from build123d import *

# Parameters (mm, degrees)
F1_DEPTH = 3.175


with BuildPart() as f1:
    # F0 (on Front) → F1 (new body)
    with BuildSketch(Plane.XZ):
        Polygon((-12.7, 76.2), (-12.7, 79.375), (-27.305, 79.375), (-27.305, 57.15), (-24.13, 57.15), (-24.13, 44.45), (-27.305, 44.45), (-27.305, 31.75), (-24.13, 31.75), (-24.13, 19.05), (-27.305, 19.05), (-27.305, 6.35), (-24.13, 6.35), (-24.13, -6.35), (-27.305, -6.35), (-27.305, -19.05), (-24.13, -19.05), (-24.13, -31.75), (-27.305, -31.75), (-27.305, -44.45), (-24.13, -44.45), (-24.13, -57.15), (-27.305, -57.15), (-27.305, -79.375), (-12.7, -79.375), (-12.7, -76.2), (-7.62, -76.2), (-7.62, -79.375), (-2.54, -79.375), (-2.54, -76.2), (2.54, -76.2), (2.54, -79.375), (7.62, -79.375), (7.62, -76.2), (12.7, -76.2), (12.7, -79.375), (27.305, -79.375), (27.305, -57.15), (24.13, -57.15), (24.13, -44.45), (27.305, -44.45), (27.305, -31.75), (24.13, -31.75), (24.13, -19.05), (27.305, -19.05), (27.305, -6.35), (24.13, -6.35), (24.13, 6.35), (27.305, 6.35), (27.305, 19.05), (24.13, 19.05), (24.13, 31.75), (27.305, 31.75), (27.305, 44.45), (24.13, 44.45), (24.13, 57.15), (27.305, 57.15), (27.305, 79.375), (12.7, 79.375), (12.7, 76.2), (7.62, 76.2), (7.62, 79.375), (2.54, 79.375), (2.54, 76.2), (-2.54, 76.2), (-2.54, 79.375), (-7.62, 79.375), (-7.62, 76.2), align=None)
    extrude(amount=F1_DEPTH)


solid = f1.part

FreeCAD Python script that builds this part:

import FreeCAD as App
import Part
import Sketcher

V = App.Vector
Q = App.Units.Quantity


def add_polygon(sketch, points):
    """Adds a closed chain of lines whose ends are joined by coincident constraints."""
    first, n = sketch.GeometryCount, len(points)
    for a, b in zip(points, points[1:] + points[:1]):
        sketch.addGeometry(Part.LineSegment(App.Vector(*a, 0), App.Vector(*b, 0)), False)
    for i in range(n):
        sketch.addConstraint(Sketcher.Constraint("Coincident", first + i, 2, first + (i + 1) % n, 1))

doc = App.newDocument("Part")
params = doc.addObject("Spreadsheet::Sheet", "Params")
for row, (alias, value) in enumerate([
    ("sketch1_width", "0.2 in"),
    ("sketch1_height", "0.5 in"),
    ("sketch1_width2", "0.575 in"),
    ("sketch1_width3", "0.125 in"),
    ("pad1_length", "0.125 in"),
], start=1):
    params.set(f"A{row}", alias)
    params.set(f"B{row}", "=" + value)
    params.setAlias(f"B{row}", alias)

body = doc.addObject("PartDesign::Body", "Body")

sketch1 = body.newObject("Sketcher::SketchObject", "Sketch")
sketch1.AttachmentSupport = (doc.getObject("XZ_Plane"), [""])
sketch1.MapMode = "FlatFace"
add_polygon(sketch1, [(-12.7, 76.2), (-12.7, 79.4), (-27.3, 79.4), (-27.3, 57.1), (-24.1, 57.1), (-24.1, 44.5), (-27.3, 44.5), (-27.3, 31.8), (-24.1, 31.8), (-24.1, 19.1), (-27.3, 19.1), (-27.3, 6.3), (-24.1, 6.3), (-24.1, -6.3), (-27.3, -6.3), (-27.3, -19.1), (-24.1, -19.1), (-24.1, -31.8), (-27.3, -31.8), (-27.3, -44.5), (-24.1, -44.5), (-24.1, -57.1), (-27.3, -57.1), (-27.3, -79.4), (-12.7, -79.4), (-12.7, -76.2), (-7.6, -76.2), (-7.6, -79.4), (-2.5, -79.4), (-2.5, -76.2), (2.5, -76.2), (2.5, -79.4), (7.6, -79.4), (7.6, -76.2), (12.7, -76.2), (12.7, -79.4), (27.3, -79.4), (27.3, -57.1), (24.1, -57.1), (24.1, -44.5), (27.3, -44.5), (27.3, -31.8), (24.1, -31.8), (24.1, -19.1), (27.3, -19.1), (27.3, -6.3), (24.1, -6.3), (24.1, 6.3), (27.3, 6.3), (27.3, 19.1), (24.1, 19.1), (24.1, 31.8), (27.3, 31.8), (27.3, 44.5), (24.1, 44.5), (24.1, 57.1), (27.3, 57.1), (27.3, 79.4), (12.7, 79.4), (12.7, 76.2), (7.6, 76.2), (7.6, 79.4), (2.5, 79.4), (2.5, 76.2), (-2.5, 76.2), (-2.5, 79.4), (-7.6, 79.4), (-7.6, 76.2)])
sketch1.addConstraint(Sketcher.Constraint("Vertical", 0))
sketch1.addConstraint(Sketcher.Constraint("Horizontal", 1))
sketch1.addConstraint(Sketcher.Constraint("Vertical", 2))
sketch1.addConstraint(Sketcher.Constraint("Horizontal", 3))
sketch1.addConstraint(Sketcher.Constraint("Vertical", 4))
sketch1.addConstraint(Sketcher.Constraint("Horizontal", 5))
sketch1.addConstraint(Sketcher.Constraint("Vertical", 6))
sketch1.addConstraint(Sketcher.Constraint("Horizontal", 7))
sketch1.addConstraint(Sketcher.Constraint("Vertical", 8))
sketch1.addConstraint(Sketcher.Constraint("Horizontal", 9))
sketch1.addConstraint(Sketcher.Constraint("Vertical", 10))
sketch1.addConstraint(Sketcher.Constraint("Horizontal", 11))
sketch1.addConstraint(Sketcher.Constraint("Vertical", 12))
sketch1.addConstraint(Sketcher.Constraint("Horizontal", 13))
sketch1.addConstraint(Sketcher.Constraint("Vertical", 14))
sketch1.addConstraint(Sketcher.Constraint("Horizontal", 15))
sketch1.addConstraint(Sketcher.Constraint("Vertical", 16))
sketch1.addConstraint(Sketcher.Constraint("Horizontal", 17))
sketch1.addConstraint(Sketcher.Constraint("Vertical", 18))
sketch1.addConstraint(Sketcher.Constraint("Horizontal", 19))
sketch1.addConstraint(Sketcher.Constraint("Vertical", 20))
sketch1.addConstraint(Sketcher.Constraint("Horizontal", 21))
sketch1.addConstraint(Sketcher.Constraint("Vertical", 22))
sketch1.addConstraint(Sketcher.Constraint("Horizontal", 23))
sketch1.addConstraint(Sketcher.Constraint("Vertical", 24))
sketch1.addConstraint(Sketcher.Constraint("Horizontal", 25))
sketch1.addConstraint(Sketcher.Constraint("Vertical", 26))
sketch1.addConstraint(Sketcher.Constraint("Horizontal", 27))
sketch1.addConstraint(Sketcher.Constraint("Vertical", 28))
sketch1.addConstraint(Sketcher.Constraint("Horizontal", 29))
sketch1.addConstraint(Sketcher.Constraint("Vertical", 30))
sketch1.addConstraint(Sketcher.Constraint("Horizontal", 31))
sketch1.addConstraint(Sketcher.Constraint("Vertical", 32))
sketch1.addConstraint(Sketcher.Constraint("Horizontal", 33))
sketch1.addConstraint(Sketcher.Constraint("Vertical", 34))
sketch1.addConstraint(Sketcher.Constraint("Horizontal", 35))
sketch1.addConstraint(Sketcher.Constraint("Vertical", 36))
sketch1.addConstraint(Sketcher.Constraint("Horizontal", 37))
sketch1.addConstraint(Sketcher.Constraint("Vertical", 38))
sketch1.addConstraint(Sketcher.Constraint("Horizontal", 39))
sketch1.addConstraint(Sketcher.Constraint("Vertical", 40))
sketch1.addConstraint(Sketcher.Constraint("Horizontal", 41))
sketch1.addConstraint(Sketcher.Constraint("Vertical", 42))
sketch1.addConstraint(Sketcher.Constraint("Horizontal", 43))
sketch1.addConstraint(Sketcher.Constraint("Vertical", 44))
sketch1.addConstraint(Sketcher.Constraint("Horizontal", 45))
sketch1.addConstraint(Sketcher.Constraint("Vertical", 46))
sketch1.addConstraint(Sketcher.Constraint("Horizontal", 47))
sketch1.addConstraint(Sketcher.Constraint("Vertical", 48))
sketch1.addConstraint(Sketcher.Constraint("Horizontal", 49))
sketch1.addConstraint(Sketcher.Constraint("Vertical", 50))
sketch1.addConstraint(Sketcher.Constraint("Horizontal", 51))
sketch1.addConstraint(Sketcher.Constraint("Vertical", 52))
sketch1.addConstraint(Sketcher.Constraint("Horizontal", 53))
sketch1.addConstraint(Sketcher.Constraint("Vertical", 54))
sketch1.addConstraint(Sketcher.Constraint("Horizontal", 55))
sketch1.addConstraint(Sketcher.Constraint("Vertical", 56))
sketch1.addConstraint(Sketcher.Constraint("Horizontal", 57))
sketch1.addConstraint(Sketcher.Constraint("Vertical", 58))
sketch1.addConstraint(Sketcher.Constraint("Horizontal", 59))
sketch1.addConstraint(Sketcher.Constraint("Vertical", 60))
sketch1.addConstraint(Sketcher.Constraint("Horizontal", 61))
sketch1.addConstraint(Sketcher.Constraint("Vertical", 62))
sketch1.addConstraint(Sketcher.Constraint("Horizontal", 63))
sketch1.addConstraint(Sketcher.Constraint("Vertical", 64))
sketch1.addConstraint(Sketcher.Constraint("Horizontal", 65))
sketch1.addConstraint(Sketcher.Constraint("Vertical", 66))
sketch1.addConstraint(Sketcher.Constraint("Horizontal", 67))
sketch1.addConstraint(Sketcher.Constraint("Symmetric", 0, 2, 34, 2, -1, 1))
sketch1.addConstraint(Sketcher.Constraint("Symmetric", 2, 2, 36, 2, -1, 1))
sketch1.addConstraint(Sketcher.Constraint("Symmetric", 4, 2, 38, 2, -1, 1))
sketch1.addConstraint(Sketcher.Constraint("Symmetric", 6, 2, 40, 2, -1, 1))
sketch1.addConstraint(Sketcher.Constraint("Symmetric", 8, 2, 42, 2, -1, 1))
sketch1.addConstraint(Sketcher.Constraint("Symmetric", 10, 2, 44, 2, -1, 1))
sketch1.addConstraint(Sketcher.Constraint("Symmetric", 12, 2, 46, 2, -1, 1))
sketch1.addConstraint(Sketcher.Constraint("Symmetric", 14, 2, 48, 2, -1, 1))
sketch1.addConstraint(Sketcher.Constraint("Symmetric", 16, 2, 50, 2, -1, 1))
sketch1.addConstraint(Sketcher.Constraint("Symmetric", 18, 2, 52, 2, -1, 1))
sketch1.addConstraint(Sketcher.Constraint("Symmetric", 20, 2, 54, 2, -1, 1))
sketch1.addConstraint(Sketcher.Constraint("Symmetric", 22, 2, 56, 2, -1, 1))
sketch1.addConstraint(Sketcher.Constraint("Symmetric", 24, 2, 58, 2, -1, 1))
sketch1.addConstraint(Sketcher.Constraint("Symmetric", 26, 2, 60, 2, -1, 1))
sketch1.addConstraint(Sketcher.Constraint("Symmetric", 28, 2, 62, 2, -1, 1))
sketch1.addConstraint(Sketcher.Constraint("Symmetric", 30, 2, 64, 2, -1, 1))
sketch1.addConstraint(Sketcher.Constraint("Symmetric", 32, 2, 66, 2, -1, 1))
sketch1.addConstraint(Sketcher.Constraint("Symmetric", 27, 2, 30, 2, -2))
sketch1.addConstraint(Sketcher.Constraint("Symmetric", 25, 2, 32, 2, -2))
sketch1.addConstraint(Sketcher.Constraint("Symmetric", 23, 2, 34, 2, -2))
sketch1.addConstraint(Sketcher.Constraint("Symmetric", 21, 2, 36, 2, -2))
sketch1.addConstraint(Sketcher.Constraint("Symmetric", 19, 2, 38, 2, -2))
sketch1.addConstraint(Sketcher.Constraint("Symmetric", 17, 2, 40, 2, -2))
sketch1.addConstraint(Sketcher.Constraint("Symmetric", 15, 2, 42, 2, -2))
sketch1.addConstraint(Sketcher.Constraint("Symmetric", 13, 2, 44, 2, -2))
sketch1.addConstraint(Sketcher.Constraint("Horizontal", 23, 2, 26, 2))
sketch1.addConstraint(Sketcher.Constraint("Horizontal", 25, 2, 28, 2))
sketch1.addConstraint(Sketcher.Constraint("Vertical", 2, 2, 5, 2))
sketch1.addConstraint(Sketcher.Constraint("Vertical", 4, 2, 7, 2))
sketch1.addConstraint(Sketcher.Constraint("Vertical", 6, 2, 9, 2))
sketch1.addConstraint(Sketcher.Constraint("Vertical", 8, 2, 11, 2))
sketch1.addConstraint(Sketcher.Constraint("Equal", 25, 27))
sketch1.addConstraint(Sketcher.Constraint("Equal", 27, 29))
sketch1.addConstraint(Sketcher.Constraint("Equal", 55, 0))
sketch1.addConstraint(Sketcher.Constraint("Equal", 4, 6))
sketch1.addConstraint(Sketcher.Constraint("Equal", 6, 8))
sketch1.addConstraint(Sketcher.Constraint("Equal", 8, 10))
sketch1.addConstraint(Sketcher.Constraint("Equal", 10, 12))
sketch1.addConstraint(Sketcher.Constraint("DistanceX", 25, 1, 25, 2, Q("0.2 in")))
sketch1.addConstraint(Sketcher.Constraint("DistanceY", 4, 2, 4, 1, Q("0.5 in")))
sketch1.addConstraint(Sketcher.Constraint("DistanceY", 24, 2, -1, 1, Q("3 in")))
sketch1.addConstraint(Sketcher.Constraint("DistanceX", 1, 2, 1, 1, Q("0.575 in")))
sketch1.addConstraint(Sketcher.Constraint("DistanceX", 3, 1, 3, 2, Q("0.125 in")))
sketch1.setExpression("Constraints[174]", "Params.sketch1_width")
sketch1.setExpression("Constraints[175]", "Params.sketch1_height")
sketch1.setExpression("Constraints[177]", "Params.sketch1_width2")
sketch1.setExpression("Constraints[178]", "Params.sketch1_width3")
pad1 = body.newObject("PartDesign::Pad", "Pad")
pad1.Profile = sketch1
pad1.setExpression("Length", "Params.pad1_length")

doc.recompute()
